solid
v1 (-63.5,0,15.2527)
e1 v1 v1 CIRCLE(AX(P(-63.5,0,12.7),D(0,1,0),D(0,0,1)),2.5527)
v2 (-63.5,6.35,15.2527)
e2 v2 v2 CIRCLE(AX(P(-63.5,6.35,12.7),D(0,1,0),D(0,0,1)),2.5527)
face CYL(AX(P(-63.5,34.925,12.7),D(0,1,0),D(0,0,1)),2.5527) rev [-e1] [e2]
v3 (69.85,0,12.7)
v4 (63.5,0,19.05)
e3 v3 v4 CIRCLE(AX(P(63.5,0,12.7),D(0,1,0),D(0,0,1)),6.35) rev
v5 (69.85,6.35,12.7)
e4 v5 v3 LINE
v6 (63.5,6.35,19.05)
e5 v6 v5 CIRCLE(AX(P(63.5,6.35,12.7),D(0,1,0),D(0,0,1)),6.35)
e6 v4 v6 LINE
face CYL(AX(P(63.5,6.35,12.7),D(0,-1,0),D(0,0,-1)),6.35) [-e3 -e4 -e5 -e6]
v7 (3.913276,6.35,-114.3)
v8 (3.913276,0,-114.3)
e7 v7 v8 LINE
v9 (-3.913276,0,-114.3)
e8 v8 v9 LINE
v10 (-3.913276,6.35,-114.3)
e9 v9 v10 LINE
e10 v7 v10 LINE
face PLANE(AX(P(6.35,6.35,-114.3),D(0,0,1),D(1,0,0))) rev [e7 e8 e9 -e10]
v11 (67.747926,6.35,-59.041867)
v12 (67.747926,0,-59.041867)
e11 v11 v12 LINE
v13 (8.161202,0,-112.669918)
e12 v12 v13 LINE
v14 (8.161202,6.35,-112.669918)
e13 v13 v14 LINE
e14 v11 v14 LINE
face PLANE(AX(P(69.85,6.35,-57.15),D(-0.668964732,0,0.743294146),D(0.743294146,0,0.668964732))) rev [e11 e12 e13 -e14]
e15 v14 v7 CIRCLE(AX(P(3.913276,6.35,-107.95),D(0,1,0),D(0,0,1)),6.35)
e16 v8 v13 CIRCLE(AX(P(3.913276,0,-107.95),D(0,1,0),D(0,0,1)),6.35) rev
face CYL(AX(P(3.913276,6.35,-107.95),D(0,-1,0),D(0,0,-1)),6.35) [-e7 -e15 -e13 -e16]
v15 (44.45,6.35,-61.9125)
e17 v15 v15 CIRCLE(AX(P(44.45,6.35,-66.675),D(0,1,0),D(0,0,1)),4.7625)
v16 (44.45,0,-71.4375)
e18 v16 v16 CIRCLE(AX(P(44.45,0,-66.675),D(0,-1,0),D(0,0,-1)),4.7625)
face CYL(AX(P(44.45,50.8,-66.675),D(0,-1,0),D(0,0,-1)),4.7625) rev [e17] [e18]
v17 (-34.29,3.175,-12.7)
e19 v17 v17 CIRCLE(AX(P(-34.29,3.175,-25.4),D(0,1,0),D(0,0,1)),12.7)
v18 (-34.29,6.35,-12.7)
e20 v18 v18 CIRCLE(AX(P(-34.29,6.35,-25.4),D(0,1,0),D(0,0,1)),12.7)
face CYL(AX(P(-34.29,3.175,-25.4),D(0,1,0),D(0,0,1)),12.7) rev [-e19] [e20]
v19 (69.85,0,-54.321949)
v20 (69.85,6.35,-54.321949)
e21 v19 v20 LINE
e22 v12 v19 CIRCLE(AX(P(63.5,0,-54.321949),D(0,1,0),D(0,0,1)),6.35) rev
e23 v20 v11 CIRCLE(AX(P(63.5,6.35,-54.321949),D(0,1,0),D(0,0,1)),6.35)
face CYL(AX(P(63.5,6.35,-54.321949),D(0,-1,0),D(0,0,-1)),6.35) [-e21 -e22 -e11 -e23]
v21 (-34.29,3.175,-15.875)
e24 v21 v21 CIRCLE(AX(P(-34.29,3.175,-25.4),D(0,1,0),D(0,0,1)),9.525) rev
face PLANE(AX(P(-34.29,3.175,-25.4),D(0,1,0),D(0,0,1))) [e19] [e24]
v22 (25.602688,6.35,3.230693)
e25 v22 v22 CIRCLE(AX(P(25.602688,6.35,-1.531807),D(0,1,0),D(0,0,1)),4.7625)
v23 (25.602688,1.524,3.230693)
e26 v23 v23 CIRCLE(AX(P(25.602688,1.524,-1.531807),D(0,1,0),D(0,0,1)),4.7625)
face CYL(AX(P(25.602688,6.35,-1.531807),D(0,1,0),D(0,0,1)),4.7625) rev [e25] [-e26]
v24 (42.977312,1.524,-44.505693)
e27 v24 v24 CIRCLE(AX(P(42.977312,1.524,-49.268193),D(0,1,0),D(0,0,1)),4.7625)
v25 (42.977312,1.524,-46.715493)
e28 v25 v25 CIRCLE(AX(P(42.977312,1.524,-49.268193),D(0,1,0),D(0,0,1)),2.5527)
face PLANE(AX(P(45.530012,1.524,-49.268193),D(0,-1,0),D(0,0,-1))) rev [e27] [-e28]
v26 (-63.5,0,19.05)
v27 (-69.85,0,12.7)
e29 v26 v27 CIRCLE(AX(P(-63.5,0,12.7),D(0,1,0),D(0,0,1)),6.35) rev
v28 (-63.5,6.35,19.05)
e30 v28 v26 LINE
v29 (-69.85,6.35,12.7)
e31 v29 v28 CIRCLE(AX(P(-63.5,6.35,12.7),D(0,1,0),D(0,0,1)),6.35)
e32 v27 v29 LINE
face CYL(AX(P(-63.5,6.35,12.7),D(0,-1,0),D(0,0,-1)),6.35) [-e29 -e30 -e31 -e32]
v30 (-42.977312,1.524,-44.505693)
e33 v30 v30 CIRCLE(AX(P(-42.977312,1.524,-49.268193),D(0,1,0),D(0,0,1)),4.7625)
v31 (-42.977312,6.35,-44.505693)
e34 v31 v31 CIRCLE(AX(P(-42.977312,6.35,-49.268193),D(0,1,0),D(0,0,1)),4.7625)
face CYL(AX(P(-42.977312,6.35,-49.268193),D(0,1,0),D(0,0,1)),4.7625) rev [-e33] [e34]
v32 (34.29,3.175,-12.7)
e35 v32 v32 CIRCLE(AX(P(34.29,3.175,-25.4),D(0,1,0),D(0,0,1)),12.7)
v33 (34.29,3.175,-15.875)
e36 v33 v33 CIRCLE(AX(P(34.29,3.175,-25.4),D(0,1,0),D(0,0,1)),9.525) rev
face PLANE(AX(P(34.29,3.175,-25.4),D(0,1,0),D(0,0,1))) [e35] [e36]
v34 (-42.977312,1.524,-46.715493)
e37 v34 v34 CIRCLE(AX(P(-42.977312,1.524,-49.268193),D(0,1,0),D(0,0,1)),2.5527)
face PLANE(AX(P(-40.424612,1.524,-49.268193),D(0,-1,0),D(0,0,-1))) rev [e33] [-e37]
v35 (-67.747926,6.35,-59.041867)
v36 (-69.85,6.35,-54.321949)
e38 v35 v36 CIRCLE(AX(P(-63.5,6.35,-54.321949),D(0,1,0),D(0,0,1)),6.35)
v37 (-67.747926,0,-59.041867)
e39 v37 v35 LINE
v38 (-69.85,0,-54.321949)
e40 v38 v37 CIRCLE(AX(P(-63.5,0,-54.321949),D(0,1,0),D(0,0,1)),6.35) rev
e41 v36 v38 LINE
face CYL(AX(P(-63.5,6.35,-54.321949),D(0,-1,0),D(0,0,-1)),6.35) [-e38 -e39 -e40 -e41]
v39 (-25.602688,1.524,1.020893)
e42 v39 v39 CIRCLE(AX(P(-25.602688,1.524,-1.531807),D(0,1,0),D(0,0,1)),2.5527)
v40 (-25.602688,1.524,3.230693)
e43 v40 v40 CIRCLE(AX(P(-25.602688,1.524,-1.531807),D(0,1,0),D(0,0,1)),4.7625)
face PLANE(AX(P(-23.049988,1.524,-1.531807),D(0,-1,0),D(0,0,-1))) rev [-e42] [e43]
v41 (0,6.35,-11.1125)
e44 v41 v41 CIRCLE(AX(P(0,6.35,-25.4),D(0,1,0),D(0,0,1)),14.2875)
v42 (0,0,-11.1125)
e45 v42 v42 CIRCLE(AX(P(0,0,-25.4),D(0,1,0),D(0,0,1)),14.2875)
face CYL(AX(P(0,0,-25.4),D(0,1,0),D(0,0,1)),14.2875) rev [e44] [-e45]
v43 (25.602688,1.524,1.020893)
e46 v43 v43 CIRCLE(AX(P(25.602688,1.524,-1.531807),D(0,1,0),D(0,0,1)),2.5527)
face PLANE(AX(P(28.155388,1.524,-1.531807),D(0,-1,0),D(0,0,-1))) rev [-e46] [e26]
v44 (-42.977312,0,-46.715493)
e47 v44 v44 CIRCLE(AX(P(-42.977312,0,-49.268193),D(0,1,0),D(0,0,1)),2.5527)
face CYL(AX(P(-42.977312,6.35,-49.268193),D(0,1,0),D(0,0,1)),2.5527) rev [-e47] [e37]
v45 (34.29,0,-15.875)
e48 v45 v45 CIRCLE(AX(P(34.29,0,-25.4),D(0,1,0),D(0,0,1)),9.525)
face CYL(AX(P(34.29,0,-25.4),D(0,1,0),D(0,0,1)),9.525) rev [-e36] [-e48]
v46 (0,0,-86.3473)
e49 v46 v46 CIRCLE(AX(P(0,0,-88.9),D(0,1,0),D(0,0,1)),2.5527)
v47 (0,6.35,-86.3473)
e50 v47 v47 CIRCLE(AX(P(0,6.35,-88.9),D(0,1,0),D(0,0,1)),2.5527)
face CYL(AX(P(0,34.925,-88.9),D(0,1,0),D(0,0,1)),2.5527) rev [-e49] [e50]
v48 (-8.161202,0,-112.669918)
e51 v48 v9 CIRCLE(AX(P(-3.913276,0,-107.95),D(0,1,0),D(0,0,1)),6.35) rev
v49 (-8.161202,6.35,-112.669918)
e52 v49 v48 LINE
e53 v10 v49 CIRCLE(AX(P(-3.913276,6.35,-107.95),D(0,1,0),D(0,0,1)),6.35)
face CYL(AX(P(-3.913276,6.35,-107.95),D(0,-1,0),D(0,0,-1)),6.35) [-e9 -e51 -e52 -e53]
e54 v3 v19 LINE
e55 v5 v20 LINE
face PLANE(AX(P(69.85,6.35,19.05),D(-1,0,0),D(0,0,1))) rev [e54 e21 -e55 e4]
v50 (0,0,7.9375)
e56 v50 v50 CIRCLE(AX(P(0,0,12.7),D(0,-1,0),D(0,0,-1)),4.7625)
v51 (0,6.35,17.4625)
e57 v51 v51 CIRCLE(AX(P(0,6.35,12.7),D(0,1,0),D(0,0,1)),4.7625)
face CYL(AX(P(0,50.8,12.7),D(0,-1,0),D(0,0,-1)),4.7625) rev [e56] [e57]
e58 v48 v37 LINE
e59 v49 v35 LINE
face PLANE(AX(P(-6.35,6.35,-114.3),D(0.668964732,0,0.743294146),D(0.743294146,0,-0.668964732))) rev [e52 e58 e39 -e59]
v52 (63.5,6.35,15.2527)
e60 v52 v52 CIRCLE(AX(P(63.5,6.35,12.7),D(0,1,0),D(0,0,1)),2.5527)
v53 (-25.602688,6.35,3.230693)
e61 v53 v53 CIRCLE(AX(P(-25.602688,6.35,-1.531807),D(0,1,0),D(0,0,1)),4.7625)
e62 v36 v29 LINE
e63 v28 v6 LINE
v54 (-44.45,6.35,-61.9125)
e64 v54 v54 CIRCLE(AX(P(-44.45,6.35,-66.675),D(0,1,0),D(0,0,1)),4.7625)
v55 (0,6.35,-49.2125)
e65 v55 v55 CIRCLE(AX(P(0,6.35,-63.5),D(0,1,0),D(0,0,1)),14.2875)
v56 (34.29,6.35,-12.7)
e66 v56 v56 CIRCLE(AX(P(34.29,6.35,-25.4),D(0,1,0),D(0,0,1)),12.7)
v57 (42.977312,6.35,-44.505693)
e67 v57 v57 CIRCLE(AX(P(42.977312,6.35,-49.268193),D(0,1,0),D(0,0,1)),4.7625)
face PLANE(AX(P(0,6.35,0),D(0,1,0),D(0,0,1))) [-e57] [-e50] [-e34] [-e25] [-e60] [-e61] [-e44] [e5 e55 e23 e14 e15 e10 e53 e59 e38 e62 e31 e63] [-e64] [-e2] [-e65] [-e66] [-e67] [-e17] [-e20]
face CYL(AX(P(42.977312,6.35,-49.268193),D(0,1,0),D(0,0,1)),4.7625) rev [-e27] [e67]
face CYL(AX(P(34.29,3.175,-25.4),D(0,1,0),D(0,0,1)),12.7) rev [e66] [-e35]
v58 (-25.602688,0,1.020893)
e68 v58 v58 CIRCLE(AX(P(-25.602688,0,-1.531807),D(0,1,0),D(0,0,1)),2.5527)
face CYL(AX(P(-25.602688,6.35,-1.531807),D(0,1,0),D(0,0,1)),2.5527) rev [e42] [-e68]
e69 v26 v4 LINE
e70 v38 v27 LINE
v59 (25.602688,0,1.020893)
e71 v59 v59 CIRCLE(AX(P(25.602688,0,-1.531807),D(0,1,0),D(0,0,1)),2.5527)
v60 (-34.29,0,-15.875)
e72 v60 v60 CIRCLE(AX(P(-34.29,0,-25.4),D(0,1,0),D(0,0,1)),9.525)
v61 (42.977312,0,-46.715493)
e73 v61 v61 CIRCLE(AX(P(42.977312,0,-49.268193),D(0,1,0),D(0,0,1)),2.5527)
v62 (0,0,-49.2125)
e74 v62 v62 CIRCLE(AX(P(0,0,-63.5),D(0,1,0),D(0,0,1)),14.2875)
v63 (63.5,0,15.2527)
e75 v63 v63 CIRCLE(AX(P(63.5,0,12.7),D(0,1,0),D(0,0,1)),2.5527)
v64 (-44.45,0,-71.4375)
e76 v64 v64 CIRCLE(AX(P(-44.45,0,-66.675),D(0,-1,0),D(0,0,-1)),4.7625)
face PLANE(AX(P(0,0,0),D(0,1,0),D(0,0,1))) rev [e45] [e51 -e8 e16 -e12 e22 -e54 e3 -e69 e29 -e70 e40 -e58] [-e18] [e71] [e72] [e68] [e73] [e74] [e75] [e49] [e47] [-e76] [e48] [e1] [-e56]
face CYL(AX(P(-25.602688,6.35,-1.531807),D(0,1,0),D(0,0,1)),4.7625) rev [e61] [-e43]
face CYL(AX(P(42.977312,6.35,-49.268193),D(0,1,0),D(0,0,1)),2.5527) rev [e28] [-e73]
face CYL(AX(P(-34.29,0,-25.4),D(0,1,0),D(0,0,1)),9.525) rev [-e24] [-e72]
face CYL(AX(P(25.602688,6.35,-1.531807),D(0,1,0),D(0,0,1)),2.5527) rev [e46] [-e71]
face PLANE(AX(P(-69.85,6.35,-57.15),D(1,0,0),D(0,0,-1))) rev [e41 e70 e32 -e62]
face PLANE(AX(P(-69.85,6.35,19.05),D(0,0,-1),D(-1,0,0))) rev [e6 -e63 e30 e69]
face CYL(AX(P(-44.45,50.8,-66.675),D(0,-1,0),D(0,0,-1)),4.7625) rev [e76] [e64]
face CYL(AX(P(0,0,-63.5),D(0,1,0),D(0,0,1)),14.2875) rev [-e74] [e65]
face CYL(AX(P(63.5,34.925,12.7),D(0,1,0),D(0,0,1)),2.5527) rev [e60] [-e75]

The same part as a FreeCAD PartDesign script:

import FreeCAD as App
import Part
import Sketcher
Q = App.Units.Quantity


def edges_at(feature, points):
    """Names of the edges that pass closest to the given points."""
    edges = feature.Shape.Edges
    near = lambda p: min(range(len(edges)), key=lambda i: edges[i].distToShape(Part.Vertex(*p))[0])
    return sorted({f"Edge{near(p) + 1}" for p in points})


def add_polygon(sketch, points):
    """Adds a closed chain of lines whose ends are joined by coincident constraints."""
    first, n = sketch.GeometryCount, len(points)
    for a, b in zip(points, points[1:] + points[:1]):
        sketch.addGeometry(Part.LineSegment(App.Vector(*a, 0), App.Vector(*b, 0)), False)
    for i in range(n):
        sketch.addConstraint(Sketcher.Constraint("Coincident", first + i, 2, first + (i + 1) % n, 1))

doc = App.newDocument("Part")
params = doc.addObject("Spreadsheet::Sheet", "Params")
for row, (alias, value) in enumerate([
    ("sketch1_height", "3 in"),
    ("sketch1_width", "0.5 in"),
    ("sketch1_width2", "5.5 in"),
    ("pad1_length", "0.25 in"),
    ("sketch2_diameter", "0.75 in"),
    ("sketch3_diameter", "1.125 in"),
    ("sketch4_diameter", "1 in"),
    ("pocket3_length", "0.125 in"),
    ("sketch5_diameter", "1.125 in"),
    ("sketch6_diameter", "0.201 in"),
    ("hole_diameter", "0.201 in"),
    ("hole_cbore_diameter", "0.375 in"),
    ("hole_cbore_depth", "0.19 in"),
    ("sketch7_diameter", "0.201 in"),
    ("hole2_diameter", "0.201 in"),
    ("fillet_radius", "0.25 in"),
    ("sketch8_diameter", "0.375 in"),
    ("pocket5_length", "2 in"),
], start=1):
    params.set(f"A{row}", alias)
    params.set(f"B{row}", "=" + value)
    params.setAlias(f"B{row}", alias)

body = doc.addObject("PartDesign::Body", "Body")

# Sketch on XZ plane
sketch1 = doc.addObject("Sketcher::SketchObject", "Sketch")
body.addObject(sketch1)
sketch1.AttachmentSupport = (doc.XZ_Plane, [""])
sketch1.MapMode = "FlatFace"
add_polygon(sketch1, [(69.85, 19.05), (69.85, -57.15), (6.35, -114.3), (-6.35, -114.3), (-69.85, -57.15), (-69.85, 19.05)])  # lines 0-5
sketch1.addConstraint(Sketcher.Constraint("Vertical", 0))
sketch1.addConstraint(Sketcher.Constraint("Horizontal", 2))
sketch1.addConstraint(Sketcher.Constraint("Vertical", 4))
sketch1.addConstraint(Sketcher.Constraint("Horizontal", 5))
sketch1.addConstraint(Sketcher.Constraint("Symmetric", 0, 2, 3, 2, -2))
sketch1.addConstraint(Sketcher.Constraint("Equal", 1, 3))
sketch1.addConstraint(Sketcher.Constraint("DistanceY", 0, 2, 0, 1, Q("3 in")))
sketch1.addConstraint(Sketcher.Constraint("DistanceX", 2, 2, 2, 1, Q("0.5 in")))
sketch1.addConstraint(Sketcher.Constraint("DistanceX", 5, 1, 5, 2, Q("5.5 in")))
sketch1.addConstraint(Sketcher.Constraint("DistanceY", 1, 2, -1, 1, Q("4.5 in")))
sketch1.addConstraint(Sketcher.Constraint("DistanceY", 0, 2, -1, 1, Q("2.25 in")))
sketch1.setExpression("Constraints[12]", "Params.sketch1_height")
sketch1.setExpression("Constraints[13]", "Params.sketch1_width")
sketch1.setExpression("Constraints[14]", "Params.sketch1_width2")
pad1 = doc.addObject("PartDesign::Pad", "Pad")
body.addObject(pad1)
pad1.Profile = sketch1
pad1.setExpression("Length", "Params.pad1_length")
pad1.Reversed = True

# Sketch on XZ plane
sketch2 = doc.addObject("Sketcher::SketchObject", "Sketch001")
body.addObject(sketch2)
sketch2.AttachmentSupport = (doc.XZ_Plane, [""])
sketch2.MapMode = "FlatFace"
sketch2.AttachmentOffset = App.Placement(App.Vector(0, 0, -0.25 * 25.4), App.Rotation())
sketch2.addGeometry(Part.Circle(App.Vector(-34.29, -25.4, 0), App.Vector(0, 0, 1), 9.525), False)
sketch2.addGeometry(Part.Circle(App.Vector(34.29, -25.4, 0), App.Vector(0, 0, 1), 9.525), False)
sketch2.addConstraint(Sketcher.Constraint("Equal", 0, 1))
sketch2.addConstraint(Sketcher.Constraint("Symmetric", 0, 3, 1, 3, -2))
sketch2.addConstraint(Sketcher.Constraint("Diameter", 0, Q("0.75 in")))
sketch2.addConstraint(Sketcher.Constraint("DistanceY", 0, 3, -1, 1, Q("1 in")))
sketch2.addConstraint(Sketcher.Constraint("DistanceX", 0, 3, 1, 3, Q("2.7 in")))
sketch2.setExpression("Constraints[2]", "Params.sketch2_diameter")
pocket1 = doc.addObject("PartDesign::Pocket", "Pocket")
body.addObject(pocket1)
pocket1.Profile = sketch2
pocket1.Type = "ThroughAll"
pocket1.Reversed = True

# Sketch on XZ plane
sketch3 = doc.addObject("Sketcher::SketchObject", "Sketch002")
body.addObject(sketch3)
sketch3.AttachmentSupport = (doc.XZ_Plane, [""])
sketch3.MapMode = "FlatFace"
sketch3.AttachmentOffset = App.Placement(App.Vector(0, 0, -0.25 * 25.4), App.Rotation())
sketch3.addGeometry(Part.Circle(App.Vector(0, -25.4, 0), App.Vector(0, 0, 1), 14.2875), False)
sketch3.addConstraint(Sketcher.Constraint("PointOnObject", 0, 3, -2))
sketch3.addConstraint(Sketcher.Constraint("Diameter", 0, Q("1.125 in")))
sketch3.addConstraint(Sketcher.Constraint("DistanceY", 0, 3, -1, 1, Q("1 in")))
sketch3.setExpression("Constraints[1]", "Params.sketch3_diameter")
pocket2 = doc.addObject("PartDesign::Pocket", "Pocket001")
body.addObject(pocket2)
pocket2.Profile = sketch3
pocket2.Type = "ThroughAll"
pocket2.Reversed = True

# Sketch on XZ plane
sketch4 = doc.addObject("Sketcher::SketchObject", "Sketch003")
body.addObject(sketch4)
sketch4.AttachmentSupport = (doc.XZ_Plane, [""])
sketch4.MapMode = "FlatFace"
sketch4.AttachmentOffset = App.Placement(App.Vector(0, 0, -0.25 * 25.4), App.Rotation())
sketch4.addGeometry(Part.Circle(App.Vector(-34.29, -25.4, 0), App.Vector(0, 0, 1), 12.7), False)
sketch4.addGeometry(Part.Circle(App.Vector(34.29, -25.4, 0), App.Vector(0, 0, 1), 12.7), False)
sketch4.addConstraint(Sketcher.Constraint("Equal", 0, 1))
sketch4.addConstraint(Sketcher.Constraint("Symmetric", 0, 3, 1, 3, -2))
sketch4.addConstraint(Sketcher.Constraint("Diameter", 0, Q("1 in")))
sketch4.addConstraint(Sketcher.Constraint("DistanceY", 0, 3, -1, 1, Q("1 in")))
sketch4.addConstraint(Sketcher.Constraint("DistanceX", 0, 3, 1, 3, Q("2.7 in")))
sketch4.setExpression("Constraints[2]", "Params.sketch4_diameter")
pocket3 = doc.addObject("PartDesign::Pocket", "Pocket002")
body.addObject(pocket3)
pocket3.Profile = sketch4
pocket3.setExpression("Length", "Params.pocket3_length")
pocket3.Reversed = True

# Sketch on XZ plane
sketch5 = doc.addObject("Sketcher::SketchObject", "Sketch004")
body.addObject(sketch5)
sketch5.AttachmentSupport = (doc.XZ_Plane, [""])
sketch5.MapMode = "FlatFace"
sketch5.AttachmentOffset = App.Placement(App.Vector(0, 0, -0.25 * 25.4), App.Rotation())
sketch5.addGeometry(Part.Circle(App.Vector(0, -63.5, 0), App.Vector(0, 0, 1), 14.2875), False)
sketch5.addConstraint(Sketcher.Constraint("PointOnObject", 0, 3, -2))
sketch5.addConstraint(Sketcher.Constraint("Diameter", 0, Q("1.125 in")))
sketch5.addConstraint(Sketcher.Constraint("DistanceY", 0, 3, -1, 1, Q("2.5 in")))
sketch5.setExpression("Constraints[1]", "Params.sketch5_diameter")
pocket4 = doc.addObject("PartDesign::Pocket", "Pocket003")
body.addObject(pocket4)
pocket4.Profile = sketch5
pocket4.Type = "ThroughAll"
pocket4.Reversed = True

# Sketch on XZ plane
sketch6 = doc.addObject("Sketcher::SketchObject", "Sketch005")
body.addObject(sketch6)
sketch6.AttachmentSupport = (doc.XZ_Plane, [""])
sketch6.MapMode = "FlatFace"
sketch6.AttachmentOffset = App.Placement(App.Vector(0, 0, -0.25 * 25.4), App.Rotation())
sketch6.addGeometry(Part.Circle(App.Vector(-42.977312, -49.268193, 0), App.Vector(0, 0, 1), 2.5527), False)
sketch6.addGeometry(Part.Circle(App.Vector(-25.602688, -1.531807, 0), App.Vector(0, 0, 1), 2.5527), False)
sketch6.addConstraint(Sketcher.Constraint("Equal", 0, 1))
sketch6.addConstraint(Sketcher.Constraint("Diameter", 0, Q("0.201 in")))
sketch6.addConstraint(Sketcher.Constraint("DistanceX", 0, 3, -1, 1, 42.977312))
sketch6.addConstraint(Sketcher.Constraint("DistanceX", 1, 3, -1, 1, 25.602688))
sketch6.addConstraint(Sketcher.Constraint("DistanceY", 0, 3, -1, 1, 49.268193))
sketch6.addConstraint(Sketcher.Constraint("DistanceY", 1, 3, -1, 1, 1.531807))
sketch6.setExpression("Constraints[1]", "Params.sketch6_diameter")
doc.recompute()
hole = doc.addObject("PartDesign::Hole", "Hole")
body.addObject(hole)
hole.Profile = sketch6
hole.ThreadType = "None"
hole.setExpression("Diameter", "Params.hole_diameter")
hole.DepthType = "ThroughAll"
hole.HoleCutType = "Counterbore"
hole.setExpression("HoleCutDiameter", "Params.hole_cbore_diameter")
hole.setExpression("HoleCutDepth", "Params.hole_cbore_depth")
hole.Reversed = True
doc.recompute()

mirrored = doc.addObject("PartDesign::Mirrored", "Mirrored")
body.addObject(mirrored)
mirrored.Originals = [hole]
mirrored.MirrorPlane = (doc.YZ_Plane, [""])
body.Tip = mirrored

# Sketch on XZ plane
sketch7 = doc.addObject("Sketcher::SketchObject", "Sketch006")
body.addObject(sketch7)
sketch7.AttachmentSupport = (doc.XZ_Plane, [""])
sketch7.MapMode = "FlatFace"
sketch7.AttachmentOffset = App.Placement(App.Vector(0, 0, -1.375 * 25.4), App.Rotation())
sketch7.addGeometry(Part.Circle(App.Vector(-63.5, 12.7, 0), App.Vector(0, 0, 1), 2.5527), False)
sketch7.addGeometry(Part.Circle(App.Vector(63.5, 12.7, 0), App.Vector(0, 0, 1), 2.5527), False)
sketch7.addGeometry(Part.Circle(App.Vector(0, -88.9, 0), App.Vector(0, 0, 1), 2.5527), False)
sketch7.addConstraint(Sketcher.Constraint("Equal", 0, 1))
sketch7.addConstraint(Sketcher.Constraint("Equal", 1, 2))
sketch7.addConstraint(Sketcher.Constraint("Symmetric", 0, 3, 1, 3, -2))
sketch7.addConstraint(Sketcher.Constraint("PointOnObject", 2, 3, -2))
sketch7.addConstraint(Sketcher.Constraint("Diameter", 0, Q("0.201 in")))
sketch7.addConstraint(Sketcher.Constraint("DistanceX", 0, 3, 1, 3, Q("5 in")))
sketch7.addConstraint(Sketcher.Constraint("DistanceY", 2, 3, 0, 3, Q("4 in")))
sketch7.addConstraint(Sketcher.Constraint("DistanceY", -1, 1, 0, 3, Q("0.5 in")))
sketch7.setExpression("Constraints[4]", "Params.sketch7_diameter")
doc.recompute()
hole2 = doc.addObject("PartDesign::Hole", "Hole001")
body.addObject(hole2)
hole2.Profile = sketch7
hole2.ThreadType = "None"
hole2.setExpression("Diameter", "Params.hole2_diameter")
hole2.DepthType = "ThroughAll"
hole2.Reversed = True
doc.recompute()

fillet = doc.addObject("PartDesign::Fillet", "Fillet")
body.addObject(fillet)
fillet.Base = (hole2, edges_at(hole2, [
    (69.85, 3.175, -57.15),
    (69.85, 3.175, 19.05),
    (-69.85, 3.175, 19.05),
    (-69.85, 3.175, -57.15),
    (-6.35, 3.175, -114.3),
    (6.35, 3.175, -114.3),
]))
fillet.setExpression("Radius", "Params.fillet_radius")

# Sketch on XZ plane
sketch8 = doc.addObject("Sketcher::SketchObject", "Sketch007")
body.addObject(sketch8)
sketch8.AttachmentSupport = (doc.XZ_Plane, [""])
sketch8.MapMode = "FlatFace"
sketch8.addGeometry(Part.Circle(App.Vector(44.45, -66.675, 0), App.Vector(0, 0, 1), 4.7625), False)
sketch8.addGeometry(Part.Circle(App.Vector(-44.45, -66.675, 0), App.Vector(0, 0, 1), 4.7625), False)
sketch8.addGeometry(Part.Circle(App.Vector(0, 12.7, 0), App.Vector(0, 0, 1), 4.7625), False)
sketch8.addConstraint(Sketcher.Constraint("Equal", 0, 1))
sketch8.addConstraint(Sketcher.Constraint("Equal", 1, 2))
sketch8.addConstraint(Sketcher.Constraint("Symmetric", 0, 3, 1, 3, -2))
sketch8.addConstraint(Sketcher.Constraint("PointOnObject", 2, 3, -2))
sketch8.addConstraint(Sketcher.Constraint("Diameter", 0, Q("0.375 in")))
sketch8.addConstraint(Sketcher.Constraint("DistanceY", -1, 1, 2, 3, Q("0.5 in")))
sketch8.addConstraint(Sketcher.Constraint("DistanceX", 1, 3, 0, 3, Q("3.5 in")))
sketch8.addConstraint(Sketcher.Constraint("DistanceY", 0, 3, -1, 1, Q("2.625 in")))
sketch8.setExpression("Constraints[4]", "Params.sketch8_diameter")
pocket5 = doc.addObject("PartDesign::Pocket", "Pocket004")
body.addObject(pocket5)
pocket5.Profile = sketch8
pocket5.setExpression("Length", "Params.pocket5_length")

doc.recompute()
